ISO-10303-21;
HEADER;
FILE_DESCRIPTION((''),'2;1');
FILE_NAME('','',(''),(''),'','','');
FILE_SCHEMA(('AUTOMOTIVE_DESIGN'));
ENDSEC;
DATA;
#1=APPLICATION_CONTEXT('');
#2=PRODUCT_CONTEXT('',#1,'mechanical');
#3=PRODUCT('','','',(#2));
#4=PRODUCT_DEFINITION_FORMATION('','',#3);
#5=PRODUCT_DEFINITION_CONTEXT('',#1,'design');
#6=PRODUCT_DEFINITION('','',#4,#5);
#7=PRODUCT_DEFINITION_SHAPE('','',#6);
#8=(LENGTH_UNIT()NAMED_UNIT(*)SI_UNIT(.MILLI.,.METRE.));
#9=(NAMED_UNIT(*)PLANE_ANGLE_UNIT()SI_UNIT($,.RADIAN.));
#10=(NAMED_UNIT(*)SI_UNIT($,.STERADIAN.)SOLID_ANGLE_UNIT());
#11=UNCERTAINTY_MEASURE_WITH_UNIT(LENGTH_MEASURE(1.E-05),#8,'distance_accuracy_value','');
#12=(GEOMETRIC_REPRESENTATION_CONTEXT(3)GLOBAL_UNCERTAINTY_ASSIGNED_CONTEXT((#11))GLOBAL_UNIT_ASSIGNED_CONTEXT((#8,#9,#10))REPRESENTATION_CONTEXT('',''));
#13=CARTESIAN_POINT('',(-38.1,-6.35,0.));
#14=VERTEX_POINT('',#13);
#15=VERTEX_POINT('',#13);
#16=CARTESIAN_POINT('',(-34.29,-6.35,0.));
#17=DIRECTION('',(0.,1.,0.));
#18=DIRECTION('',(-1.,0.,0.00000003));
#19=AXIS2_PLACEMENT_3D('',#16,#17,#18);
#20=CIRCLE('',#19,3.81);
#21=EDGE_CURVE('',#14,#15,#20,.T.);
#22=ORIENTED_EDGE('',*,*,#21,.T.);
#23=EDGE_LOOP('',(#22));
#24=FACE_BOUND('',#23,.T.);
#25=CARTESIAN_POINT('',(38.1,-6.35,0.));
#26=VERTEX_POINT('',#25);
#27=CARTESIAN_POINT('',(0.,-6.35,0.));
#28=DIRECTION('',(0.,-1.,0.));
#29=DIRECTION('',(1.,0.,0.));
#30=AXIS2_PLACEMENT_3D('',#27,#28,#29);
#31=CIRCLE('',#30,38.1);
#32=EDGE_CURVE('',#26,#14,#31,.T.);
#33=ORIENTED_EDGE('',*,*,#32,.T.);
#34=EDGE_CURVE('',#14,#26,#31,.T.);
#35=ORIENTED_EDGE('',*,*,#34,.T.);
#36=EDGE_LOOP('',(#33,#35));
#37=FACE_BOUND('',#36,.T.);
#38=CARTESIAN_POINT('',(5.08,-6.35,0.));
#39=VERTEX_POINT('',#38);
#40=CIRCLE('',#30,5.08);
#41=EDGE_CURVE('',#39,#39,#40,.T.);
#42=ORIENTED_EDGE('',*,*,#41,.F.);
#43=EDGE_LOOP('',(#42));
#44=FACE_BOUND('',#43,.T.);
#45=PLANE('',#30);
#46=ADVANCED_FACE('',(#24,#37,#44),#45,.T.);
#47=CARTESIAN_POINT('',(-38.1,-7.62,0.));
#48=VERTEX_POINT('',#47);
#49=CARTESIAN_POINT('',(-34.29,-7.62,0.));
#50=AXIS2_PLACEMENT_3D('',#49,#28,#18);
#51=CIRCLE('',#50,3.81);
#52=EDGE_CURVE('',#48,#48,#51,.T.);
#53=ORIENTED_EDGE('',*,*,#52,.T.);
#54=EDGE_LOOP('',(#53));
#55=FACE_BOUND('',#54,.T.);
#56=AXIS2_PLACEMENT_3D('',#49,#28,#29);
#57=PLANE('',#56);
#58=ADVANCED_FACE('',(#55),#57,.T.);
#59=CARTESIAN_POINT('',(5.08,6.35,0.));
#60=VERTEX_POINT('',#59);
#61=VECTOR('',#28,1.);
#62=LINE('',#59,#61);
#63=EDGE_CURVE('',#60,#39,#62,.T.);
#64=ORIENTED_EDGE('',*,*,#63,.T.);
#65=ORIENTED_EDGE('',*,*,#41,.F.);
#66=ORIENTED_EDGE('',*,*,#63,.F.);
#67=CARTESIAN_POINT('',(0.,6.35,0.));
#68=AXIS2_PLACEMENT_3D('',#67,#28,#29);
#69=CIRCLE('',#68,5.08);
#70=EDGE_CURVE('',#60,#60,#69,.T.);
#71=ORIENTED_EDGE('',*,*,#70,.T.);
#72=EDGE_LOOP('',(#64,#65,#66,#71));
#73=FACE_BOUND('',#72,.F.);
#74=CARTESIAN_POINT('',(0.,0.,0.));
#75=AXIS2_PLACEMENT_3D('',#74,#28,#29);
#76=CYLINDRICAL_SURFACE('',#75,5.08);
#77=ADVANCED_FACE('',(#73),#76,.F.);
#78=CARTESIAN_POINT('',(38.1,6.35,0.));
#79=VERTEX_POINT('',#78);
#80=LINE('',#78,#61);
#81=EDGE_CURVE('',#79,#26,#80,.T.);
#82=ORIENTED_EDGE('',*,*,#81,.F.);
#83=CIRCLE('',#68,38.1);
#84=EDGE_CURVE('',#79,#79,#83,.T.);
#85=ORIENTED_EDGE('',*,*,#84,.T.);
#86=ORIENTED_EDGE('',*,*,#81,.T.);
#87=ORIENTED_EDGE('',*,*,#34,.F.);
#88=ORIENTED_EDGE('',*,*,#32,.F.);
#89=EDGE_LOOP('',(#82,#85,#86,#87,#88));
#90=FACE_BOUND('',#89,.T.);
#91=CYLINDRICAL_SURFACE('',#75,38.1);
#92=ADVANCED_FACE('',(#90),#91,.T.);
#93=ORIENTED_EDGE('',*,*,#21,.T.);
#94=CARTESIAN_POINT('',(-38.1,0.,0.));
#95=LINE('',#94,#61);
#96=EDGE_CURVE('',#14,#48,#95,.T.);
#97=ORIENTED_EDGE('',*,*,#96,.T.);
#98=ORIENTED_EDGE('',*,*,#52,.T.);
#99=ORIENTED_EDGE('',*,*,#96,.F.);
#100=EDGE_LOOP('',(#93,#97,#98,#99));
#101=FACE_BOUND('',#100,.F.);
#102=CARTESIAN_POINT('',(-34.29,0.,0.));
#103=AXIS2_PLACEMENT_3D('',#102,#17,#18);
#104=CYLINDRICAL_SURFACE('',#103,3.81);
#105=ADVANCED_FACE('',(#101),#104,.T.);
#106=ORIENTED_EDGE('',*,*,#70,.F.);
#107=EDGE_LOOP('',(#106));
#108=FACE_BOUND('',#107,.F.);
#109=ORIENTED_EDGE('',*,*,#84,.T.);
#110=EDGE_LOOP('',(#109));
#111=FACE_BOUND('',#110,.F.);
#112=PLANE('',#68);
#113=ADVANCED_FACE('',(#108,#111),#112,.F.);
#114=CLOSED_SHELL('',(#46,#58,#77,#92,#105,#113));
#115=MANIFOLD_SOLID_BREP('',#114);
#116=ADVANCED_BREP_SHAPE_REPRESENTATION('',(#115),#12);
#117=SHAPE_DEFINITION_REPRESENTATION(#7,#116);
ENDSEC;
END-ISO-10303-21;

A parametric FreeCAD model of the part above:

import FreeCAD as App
import Part
import Sketcher
from FreeCAD import Vector
Q = App.Units.Quantity


def faces_at(feature, points):
    """Names of the faces that lie closest to the given points."""
    faces = feature.Shape.Faces
    near = lambda p: min(range(len(faces)), key=lambda i: faces[i].distToShape(Part.Vertex(*p))[0])
    return sorted({f"Face{near(p) + 1}" for p in points})

doc = App.newDocument("Part")
body = doc.addObject("PartDesign::Body", "Body")

sketch1 = body.newObject("Sketcher::SketchObject", "Sketch")
sketch1.AttachmentSupport = (doc.getObject("XZ_Plane"), [""])
sketch1.MapMode = "FlatFace"
sketch1.addGeometry(Part.Circle(Vector(0, 0, 0), Vector(0, 0, 1), 38), False)
sketch1.addConstraint([
    Sketcher.Constraint("Coincident", 0, 3, -1, 1),
    Sketcher.Constraint("Diameter", 0, Q("3 in")),
])
pad1 = body.newObject("PartDesign::Pad", "Pad")
pad1.Profile = sketch1
pad1.Length = Q("0.5 in")
pad1.Midplane = True
doc.recompute()

thickness = body.newObject("PartDesign::Thickness", "Thickness")
thickness.Base = (pad1, faces_at(pad1, [(0, -6.35, 0), (0, 6.35, 0)]))
thickness.Value = Q("1.3 in")
thickness.Reversed = True
thickness.Join = "Arc"

sketch2 = body.newObject("Sketcher::SketchObject", "Sketch001")
sketch2.AttachmentSupport = (doc.getObject("XZ_Plane"), [""])
sketch2.MapMode = "FlatFace"
sketch2.addGeometry(Part.Circle(Vector(-34.3, 0, 0), Vector(0, 0, 1), 3.8), False)
sketch2.addConstraint([
    Sketcher.Constraint("PointOnObject", 0, 3, -1),
    Sketcher.Constraint("Diameter", 0, Q("0.3 in")),
    Sketcher.Constraint("DistanceX", 0, 3, -1, 1, Q("1.35 in")),
])
pad2 = body.newObject("PartDesign::Pad", "Pad001")
pad2.Profile = sketch2
pad2.Length = Q("0.3 in")

doc.recompute()
